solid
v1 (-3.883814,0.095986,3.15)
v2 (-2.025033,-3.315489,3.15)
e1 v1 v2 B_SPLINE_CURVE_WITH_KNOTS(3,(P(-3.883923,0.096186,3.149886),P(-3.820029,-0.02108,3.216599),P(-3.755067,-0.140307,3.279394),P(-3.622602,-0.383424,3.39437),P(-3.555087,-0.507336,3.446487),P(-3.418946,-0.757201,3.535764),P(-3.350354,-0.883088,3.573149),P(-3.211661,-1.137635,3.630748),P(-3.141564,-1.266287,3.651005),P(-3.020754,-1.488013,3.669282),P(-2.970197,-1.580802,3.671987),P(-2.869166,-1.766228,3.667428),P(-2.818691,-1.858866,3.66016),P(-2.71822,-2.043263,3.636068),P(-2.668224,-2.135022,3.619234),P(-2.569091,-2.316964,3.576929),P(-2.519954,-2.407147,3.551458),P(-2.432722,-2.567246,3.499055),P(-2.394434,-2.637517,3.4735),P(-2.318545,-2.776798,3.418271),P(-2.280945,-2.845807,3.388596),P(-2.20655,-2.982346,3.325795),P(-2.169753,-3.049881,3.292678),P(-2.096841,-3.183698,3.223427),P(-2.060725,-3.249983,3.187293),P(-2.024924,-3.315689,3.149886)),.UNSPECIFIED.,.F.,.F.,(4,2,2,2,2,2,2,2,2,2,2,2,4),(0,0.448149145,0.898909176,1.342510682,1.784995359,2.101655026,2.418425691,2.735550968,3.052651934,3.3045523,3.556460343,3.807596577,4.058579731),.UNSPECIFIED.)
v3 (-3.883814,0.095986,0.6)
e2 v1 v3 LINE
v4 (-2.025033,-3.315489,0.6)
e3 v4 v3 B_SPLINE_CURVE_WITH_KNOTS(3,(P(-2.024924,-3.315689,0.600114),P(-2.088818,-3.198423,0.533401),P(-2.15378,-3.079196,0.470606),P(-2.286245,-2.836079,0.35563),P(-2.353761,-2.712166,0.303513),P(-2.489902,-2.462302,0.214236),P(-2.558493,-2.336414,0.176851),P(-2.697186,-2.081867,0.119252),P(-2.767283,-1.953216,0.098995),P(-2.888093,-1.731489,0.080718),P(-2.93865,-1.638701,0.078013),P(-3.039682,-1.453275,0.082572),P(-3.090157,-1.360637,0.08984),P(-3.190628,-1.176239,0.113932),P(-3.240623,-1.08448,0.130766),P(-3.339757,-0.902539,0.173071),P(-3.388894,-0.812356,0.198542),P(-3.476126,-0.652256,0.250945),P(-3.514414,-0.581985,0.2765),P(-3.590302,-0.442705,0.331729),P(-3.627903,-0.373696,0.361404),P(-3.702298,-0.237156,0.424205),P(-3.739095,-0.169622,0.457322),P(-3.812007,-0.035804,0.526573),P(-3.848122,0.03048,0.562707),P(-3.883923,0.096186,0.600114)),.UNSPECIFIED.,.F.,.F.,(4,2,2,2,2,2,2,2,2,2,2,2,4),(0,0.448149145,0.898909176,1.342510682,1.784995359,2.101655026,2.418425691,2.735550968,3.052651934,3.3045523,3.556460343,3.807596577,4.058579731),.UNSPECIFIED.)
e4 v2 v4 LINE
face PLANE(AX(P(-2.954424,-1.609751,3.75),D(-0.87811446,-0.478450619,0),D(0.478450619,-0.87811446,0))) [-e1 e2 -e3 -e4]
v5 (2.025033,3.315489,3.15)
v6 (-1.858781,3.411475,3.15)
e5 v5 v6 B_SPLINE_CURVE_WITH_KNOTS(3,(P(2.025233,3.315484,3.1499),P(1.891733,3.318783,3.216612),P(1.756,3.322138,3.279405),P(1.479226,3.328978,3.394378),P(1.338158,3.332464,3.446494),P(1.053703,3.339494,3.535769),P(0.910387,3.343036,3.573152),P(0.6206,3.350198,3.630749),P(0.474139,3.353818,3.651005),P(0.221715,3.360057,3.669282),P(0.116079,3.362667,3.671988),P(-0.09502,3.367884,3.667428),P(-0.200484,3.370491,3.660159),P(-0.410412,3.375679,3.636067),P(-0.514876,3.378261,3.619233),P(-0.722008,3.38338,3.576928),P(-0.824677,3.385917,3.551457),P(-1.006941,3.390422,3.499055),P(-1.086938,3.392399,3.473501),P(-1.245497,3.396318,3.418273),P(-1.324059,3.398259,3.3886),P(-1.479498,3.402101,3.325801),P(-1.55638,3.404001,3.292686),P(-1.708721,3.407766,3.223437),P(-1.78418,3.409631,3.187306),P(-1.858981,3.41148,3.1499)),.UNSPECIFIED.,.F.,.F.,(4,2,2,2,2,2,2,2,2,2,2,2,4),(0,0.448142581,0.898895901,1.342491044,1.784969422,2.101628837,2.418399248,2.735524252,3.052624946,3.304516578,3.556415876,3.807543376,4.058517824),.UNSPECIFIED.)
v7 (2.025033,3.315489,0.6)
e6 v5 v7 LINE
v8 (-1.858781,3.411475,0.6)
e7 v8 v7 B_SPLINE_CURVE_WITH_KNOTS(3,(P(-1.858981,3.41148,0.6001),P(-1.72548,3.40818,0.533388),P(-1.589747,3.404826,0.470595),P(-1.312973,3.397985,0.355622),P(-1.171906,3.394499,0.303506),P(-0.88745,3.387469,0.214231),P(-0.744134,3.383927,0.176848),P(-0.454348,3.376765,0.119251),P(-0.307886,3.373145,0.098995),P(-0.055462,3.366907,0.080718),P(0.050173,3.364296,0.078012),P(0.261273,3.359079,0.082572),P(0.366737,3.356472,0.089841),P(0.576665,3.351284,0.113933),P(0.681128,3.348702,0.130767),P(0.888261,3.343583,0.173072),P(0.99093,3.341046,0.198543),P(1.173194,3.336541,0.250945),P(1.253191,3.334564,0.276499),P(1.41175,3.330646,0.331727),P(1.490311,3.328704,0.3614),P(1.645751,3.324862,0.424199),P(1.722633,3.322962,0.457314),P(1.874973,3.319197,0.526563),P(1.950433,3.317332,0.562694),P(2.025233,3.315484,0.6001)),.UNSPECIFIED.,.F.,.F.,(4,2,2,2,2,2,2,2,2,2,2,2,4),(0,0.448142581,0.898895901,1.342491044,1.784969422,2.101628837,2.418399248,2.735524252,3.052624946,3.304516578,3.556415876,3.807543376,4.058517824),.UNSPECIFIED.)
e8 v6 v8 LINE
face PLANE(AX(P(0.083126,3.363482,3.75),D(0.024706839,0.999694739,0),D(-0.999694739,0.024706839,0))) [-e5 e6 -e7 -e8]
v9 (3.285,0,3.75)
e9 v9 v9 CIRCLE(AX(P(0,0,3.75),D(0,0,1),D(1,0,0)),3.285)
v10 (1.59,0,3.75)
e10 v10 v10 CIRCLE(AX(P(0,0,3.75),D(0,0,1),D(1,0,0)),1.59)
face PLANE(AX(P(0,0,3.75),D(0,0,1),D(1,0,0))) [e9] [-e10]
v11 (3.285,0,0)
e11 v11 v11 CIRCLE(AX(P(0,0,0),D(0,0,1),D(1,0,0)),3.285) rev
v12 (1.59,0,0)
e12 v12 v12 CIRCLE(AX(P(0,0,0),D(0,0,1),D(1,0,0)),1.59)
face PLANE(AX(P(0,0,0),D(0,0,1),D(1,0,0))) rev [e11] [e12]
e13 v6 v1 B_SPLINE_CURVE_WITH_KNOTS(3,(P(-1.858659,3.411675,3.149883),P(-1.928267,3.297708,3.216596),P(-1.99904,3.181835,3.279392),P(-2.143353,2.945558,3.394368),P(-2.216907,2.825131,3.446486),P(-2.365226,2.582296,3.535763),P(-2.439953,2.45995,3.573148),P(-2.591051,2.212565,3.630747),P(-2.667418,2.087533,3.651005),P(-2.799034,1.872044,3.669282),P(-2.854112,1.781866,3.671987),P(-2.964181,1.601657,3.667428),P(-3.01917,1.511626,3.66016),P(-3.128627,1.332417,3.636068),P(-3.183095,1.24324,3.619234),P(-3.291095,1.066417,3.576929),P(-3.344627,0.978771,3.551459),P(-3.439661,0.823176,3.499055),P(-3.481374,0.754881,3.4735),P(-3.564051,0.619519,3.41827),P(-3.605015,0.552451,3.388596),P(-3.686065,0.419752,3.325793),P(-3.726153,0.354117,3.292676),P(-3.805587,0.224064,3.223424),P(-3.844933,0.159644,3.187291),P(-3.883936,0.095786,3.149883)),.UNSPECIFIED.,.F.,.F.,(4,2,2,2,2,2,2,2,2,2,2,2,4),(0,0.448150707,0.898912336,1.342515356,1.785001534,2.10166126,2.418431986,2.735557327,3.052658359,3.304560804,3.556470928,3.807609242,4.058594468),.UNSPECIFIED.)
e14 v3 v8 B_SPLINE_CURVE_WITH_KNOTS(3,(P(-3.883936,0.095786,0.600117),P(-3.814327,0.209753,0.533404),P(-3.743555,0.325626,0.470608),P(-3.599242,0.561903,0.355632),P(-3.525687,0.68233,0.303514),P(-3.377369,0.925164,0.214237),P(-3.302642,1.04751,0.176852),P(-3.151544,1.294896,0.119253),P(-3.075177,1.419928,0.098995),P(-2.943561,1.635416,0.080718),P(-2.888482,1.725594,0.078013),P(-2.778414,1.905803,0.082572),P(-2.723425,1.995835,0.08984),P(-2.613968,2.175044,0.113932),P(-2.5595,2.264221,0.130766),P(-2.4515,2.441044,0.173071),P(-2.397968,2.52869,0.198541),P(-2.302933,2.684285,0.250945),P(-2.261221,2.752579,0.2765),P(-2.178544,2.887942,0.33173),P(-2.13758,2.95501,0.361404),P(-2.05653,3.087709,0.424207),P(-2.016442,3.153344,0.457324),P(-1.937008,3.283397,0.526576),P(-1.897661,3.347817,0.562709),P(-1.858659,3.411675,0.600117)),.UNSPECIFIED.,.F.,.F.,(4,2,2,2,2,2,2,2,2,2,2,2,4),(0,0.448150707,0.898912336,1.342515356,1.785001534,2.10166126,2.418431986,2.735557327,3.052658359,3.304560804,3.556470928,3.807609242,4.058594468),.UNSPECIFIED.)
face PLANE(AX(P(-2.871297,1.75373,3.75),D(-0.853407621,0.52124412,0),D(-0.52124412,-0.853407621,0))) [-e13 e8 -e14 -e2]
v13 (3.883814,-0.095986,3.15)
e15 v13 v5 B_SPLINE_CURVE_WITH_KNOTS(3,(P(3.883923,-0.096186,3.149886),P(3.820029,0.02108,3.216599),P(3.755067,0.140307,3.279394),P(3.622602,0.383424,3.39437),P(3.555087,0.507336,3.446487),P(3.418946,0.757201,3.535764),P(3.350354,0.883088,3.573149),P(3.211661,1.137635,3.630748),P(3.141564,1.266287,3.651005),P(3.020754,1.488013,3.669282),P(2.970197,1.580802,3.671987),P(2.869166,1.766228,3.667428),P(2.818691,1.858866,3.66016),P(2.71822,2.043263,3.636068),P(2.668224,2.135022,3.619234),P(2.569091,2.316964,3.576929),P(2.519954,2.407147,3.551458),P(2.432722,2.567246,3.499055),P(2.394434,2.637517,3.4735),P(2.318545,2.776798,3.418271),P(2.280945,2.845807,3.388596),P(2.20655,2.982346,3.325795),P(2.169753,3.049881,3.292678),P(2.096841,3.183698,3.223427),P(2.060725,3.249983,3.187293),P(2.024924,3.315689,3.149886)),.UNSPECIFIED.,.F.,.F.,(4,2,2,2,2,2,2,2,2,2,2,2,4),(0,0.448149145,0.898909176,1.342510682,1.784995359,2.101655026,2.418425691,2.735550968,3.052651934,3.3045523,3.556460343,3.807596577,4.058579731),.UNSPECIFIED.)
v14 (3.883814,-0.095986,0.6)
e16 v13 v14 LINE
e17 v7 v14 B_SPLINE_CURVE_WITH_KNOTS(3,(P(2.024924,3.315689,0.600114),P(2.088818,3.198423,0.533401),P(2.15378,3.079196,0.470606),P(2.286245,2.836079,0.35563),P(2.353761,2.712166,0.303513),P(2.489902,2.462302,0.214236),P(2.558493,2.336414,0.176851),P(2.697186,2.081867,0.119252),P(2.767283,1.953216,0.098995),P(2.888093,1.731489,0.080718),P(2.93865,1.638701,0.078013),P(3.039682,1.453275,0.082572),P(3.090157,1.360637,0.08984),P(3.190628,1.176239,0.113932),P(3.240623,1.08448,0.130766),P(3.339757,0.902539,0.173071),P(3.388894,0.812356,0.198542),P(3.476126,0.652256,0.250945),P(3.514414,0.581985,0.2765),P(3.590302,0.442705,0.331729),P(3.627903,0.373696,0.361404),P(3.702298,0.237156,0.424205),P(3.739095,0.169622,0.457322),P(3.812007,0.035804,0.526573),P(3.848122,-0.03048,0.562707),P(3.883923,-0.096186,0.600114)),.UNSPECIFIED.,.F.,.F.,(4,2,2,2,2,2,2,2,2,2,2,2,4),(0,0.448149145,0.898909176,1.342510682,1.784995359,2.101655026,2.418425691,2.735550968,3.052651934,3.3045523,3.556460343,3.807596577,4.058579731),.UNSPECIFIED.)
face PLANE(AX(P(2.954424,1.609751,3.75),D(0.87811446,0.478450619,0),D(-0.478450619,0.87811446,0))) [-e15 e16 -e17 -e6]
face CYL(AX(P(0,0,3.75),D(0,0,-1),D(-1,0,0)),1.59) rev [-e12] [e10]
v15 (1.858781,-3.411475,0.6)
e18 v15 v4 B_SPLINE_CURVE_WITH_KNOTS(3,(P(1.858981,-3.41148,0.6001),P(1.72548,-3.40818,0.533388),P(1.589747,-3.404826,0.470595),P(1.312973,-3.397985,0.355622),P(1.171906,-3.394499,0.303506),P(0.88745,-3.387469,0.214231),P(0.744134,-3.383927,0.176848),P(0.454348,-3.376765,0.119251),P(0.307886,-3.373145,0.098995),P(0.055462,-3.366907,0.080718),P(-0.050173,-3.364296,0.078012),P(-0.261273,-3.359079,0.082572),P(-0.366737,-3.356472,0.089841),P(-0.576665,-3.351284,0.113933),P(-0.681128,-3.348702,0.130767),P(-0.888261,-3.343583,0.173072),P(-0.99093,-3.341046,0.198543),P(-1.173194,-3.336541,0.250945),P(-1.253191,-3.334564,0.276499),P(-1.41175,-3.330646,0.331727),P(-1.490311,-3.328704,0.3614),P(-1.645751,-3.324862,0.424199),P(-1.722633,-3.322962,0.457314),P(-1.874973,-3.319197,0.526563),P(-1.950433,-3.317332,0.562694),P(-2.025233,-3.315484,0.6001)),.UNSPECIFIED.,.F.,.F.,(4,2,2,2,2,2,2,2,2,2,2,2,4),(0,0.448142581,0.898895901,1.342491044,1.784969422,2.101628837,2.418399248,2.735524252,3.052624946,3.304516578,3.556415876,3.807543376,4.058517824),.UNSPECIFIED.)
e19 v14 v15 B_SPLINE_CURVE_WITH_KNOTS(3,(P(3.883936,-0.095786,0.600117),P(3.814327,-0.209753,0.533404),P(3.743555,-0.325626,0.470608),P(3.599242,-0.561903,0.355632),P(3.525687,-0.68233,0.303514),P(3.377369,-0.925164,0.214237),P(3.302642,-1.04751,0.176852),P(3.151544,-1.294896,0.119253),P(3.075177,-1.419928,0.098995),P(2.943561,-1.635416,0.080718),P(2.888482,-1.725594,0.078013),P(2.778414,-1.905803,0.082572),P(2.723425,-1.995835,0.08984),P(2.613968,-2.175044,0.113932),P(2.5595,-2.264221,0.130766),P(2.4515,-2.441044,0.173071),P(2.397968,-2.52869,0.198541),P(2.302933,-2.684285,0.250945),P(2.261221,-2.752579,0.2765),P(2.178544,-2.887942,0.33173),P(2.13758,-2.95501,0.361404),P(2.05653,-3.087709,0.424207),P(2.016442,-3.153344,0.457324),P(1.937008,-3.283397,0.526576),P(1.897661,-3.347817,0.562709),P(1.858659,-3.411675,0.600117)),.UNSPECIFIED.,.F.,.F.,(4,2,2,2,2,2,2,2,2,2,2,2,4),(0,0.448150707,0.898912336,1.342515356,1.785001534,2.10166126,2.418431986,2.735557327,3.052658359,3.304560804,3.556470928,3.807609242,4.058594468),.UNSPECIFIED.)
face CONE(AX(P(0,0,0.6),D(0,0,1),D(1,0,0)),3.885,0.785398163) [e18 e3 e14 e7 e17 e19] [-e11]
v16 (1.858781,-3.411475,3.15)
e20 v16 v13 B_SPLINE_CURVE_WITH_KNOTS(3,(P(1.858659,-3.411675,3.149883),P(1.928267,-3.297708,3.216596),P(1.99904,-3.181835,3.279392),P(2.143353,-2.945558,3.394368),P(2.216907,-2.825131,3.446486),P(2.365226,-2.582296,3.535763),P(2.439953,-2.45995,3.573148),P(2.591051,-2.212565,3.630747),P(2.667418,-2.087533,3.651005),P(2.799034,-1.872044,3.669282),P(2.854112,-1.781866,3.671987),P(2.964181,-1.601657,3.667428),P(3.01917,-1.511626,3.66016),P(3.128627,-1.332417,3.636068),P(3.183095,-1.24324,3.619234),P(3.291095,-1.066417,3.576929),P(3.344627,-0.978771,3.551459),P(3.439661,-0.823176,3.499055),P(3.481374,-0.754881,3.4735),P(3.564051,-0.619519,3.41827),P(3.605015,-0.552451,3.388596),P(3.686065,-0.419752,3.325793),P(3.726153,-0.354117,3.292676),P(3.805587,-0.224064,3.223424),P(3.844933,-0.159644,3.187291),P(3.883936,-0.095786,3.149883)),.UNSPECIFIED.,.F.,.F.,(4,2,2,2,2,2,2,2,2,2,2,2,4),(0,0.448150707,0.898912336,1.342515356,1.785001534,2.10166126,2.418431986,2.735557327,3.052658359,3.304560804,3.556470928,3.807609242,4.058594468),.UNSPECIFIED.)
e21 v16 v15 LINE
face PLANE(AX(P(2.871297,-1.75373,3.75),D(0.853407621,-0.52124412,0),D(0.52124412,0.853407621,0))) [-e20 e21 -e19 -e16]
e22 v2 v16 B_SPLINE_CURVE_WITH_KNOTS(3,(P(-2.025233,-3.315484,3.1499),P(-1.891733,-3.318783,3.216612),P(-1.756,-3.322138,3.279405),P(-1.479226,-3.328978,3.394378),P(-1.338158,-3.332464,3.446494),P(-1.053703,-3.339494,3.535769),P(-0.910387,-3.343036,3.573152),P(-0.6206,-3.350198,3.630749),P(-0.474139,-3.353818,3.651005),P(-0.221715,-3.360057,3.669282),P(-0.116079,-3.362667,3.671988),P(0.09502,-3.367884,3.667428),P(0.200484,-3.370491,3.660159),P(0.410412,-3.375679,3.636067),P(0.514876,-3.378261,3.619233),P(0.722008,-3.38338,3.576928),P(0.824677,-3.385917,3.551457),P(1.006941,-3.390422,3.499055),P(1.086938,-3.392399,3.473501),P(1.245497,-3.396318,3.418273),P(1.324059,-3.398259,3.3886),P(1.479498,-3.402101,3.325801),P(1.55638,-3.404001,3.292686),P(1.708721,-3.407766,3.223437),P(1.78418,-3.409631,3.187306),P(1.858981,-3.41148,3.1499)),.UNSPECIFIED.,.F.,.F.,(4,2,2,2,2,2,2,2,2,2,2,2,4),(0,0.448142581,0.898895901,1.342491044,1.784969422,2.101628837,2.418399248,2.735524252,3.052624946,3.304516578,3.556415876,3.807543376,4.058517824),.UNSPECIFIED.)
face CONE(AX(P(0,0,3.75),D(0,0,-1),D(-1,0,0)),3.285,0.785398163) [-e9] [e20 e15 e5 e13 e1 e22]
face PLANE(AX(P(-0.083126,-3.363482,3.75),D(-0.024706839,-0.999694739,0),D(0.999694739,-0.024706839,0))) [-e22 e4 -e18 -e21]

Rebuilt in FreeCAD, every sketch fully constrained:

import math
import FreeCAD as App
import Part
import Sketcher

V = App.Vector


def edges_at(feature, points):
    """Names of the edges that pass closest to the given points."""
    edges = feature.Shape.Edges
    near = lambda p: min(range(len(edges)), key=lambda i: edges[i].distToShape(Part.Vertex(*p))[0])
    return sorted({f"Edge{near(p) + 1}" for p in points})

doc = App.newDocument("Part")
params = doc.addObject("Spreadsheet::Sheet", "Params")
for row, (alias, value) in enumerate([
    ("sketch1_diameter", "7.77 mm"),
    ("sketch1_diameter2", "3.18 mm"),
    ("pad1_length", "3.75 mm"),
    ("chamfer_size", "0.6 mm"),
    ("pocket1_length", "3.75 mm"),
], start=1):
    params.set(f"A{row}", alias)
    params.set(f"B{row}", "=" + value)
    params.setAlias(f"B{row}", alias)

body = doc.addObject("PartDesign::Body", "Body")

# Sketch on XY plane
sketch1 = doc.addObject("Sketcher::SketchObject", "Sketch")
body.addObject(sketch1)
sketch1.AttachmentSupport = (doc.XY_Plane, [""])
sketch1.MapMode = "FlatFace"
sketch1.addGeometry([
    Part.Circle(V(0, 0, 0), V(0, 0, 1), 3.9),
    Part.Circle(V(0, 0, 0), V(0, 0, 1), 1.6),
], False)
sketch1.addConstraint([
    Sketcher.Constraint("Coincident", 0, 3, -1, 1),
    Sketcher.Constraint("Coincident", 1, 3, -1, 1),
    Sketcher.Constraint("Diameter", 0, 7.77),
    Sketcher.Constraint("Diameter", 1, 3.18),
])
sketch1.setExpression("Constraints[2]", "Params.sketch1_diameter")
sketch1.setExpression("Constraints[3]", "Params.sketch1_diameter2")
pad1 = doc.addObject("PartDesign::Pad", "Pad")
body.addObject(pad1)
pad1.Profile = sketch1
pad1.setExpression("Length", "Params.pad1_length")
doc.recompute()

chamfer = doc.addObject("PartDesign::Chamfer", "Chamfer")
body.addObject(chamfer)
chamfer.Base = (pad1, edges_at(pad1, [(-3.885, 0, 0), (-3.885, 0, 3.75)]))
chamfer.setExpression("Size", "Params.chamfer_size")

# Sketch on XY plane
sketch2 = doc.addObject("Sketcher::SketchObject", "Sketch001")
body.addObject(sketch2)
sketch2.AttachmentSupport = (doc.XY_Plane, [""])
sketch2.MapMode = "FlatFace"
sketch2.addGeometry([
    Part.LineSegment(V(3.88, -0.1, 0), V(2.03, 3.32, 0)),  # 0
    Part.ArcOfCircle(Part.Circle(V(0, 0, 0), V(0, 0, 1), 3.89), math.radians(-1), math.radians(59)),  # 1
    Part.LineSegment(V(1.86, -3.41, 0), V(3.88, -0.1, 0)),  # 2
    Part.ArcOfCircle(Part.Circle(V(0, 0, 0), V(0, 0, 1), 3.88), math.radians(-61), math.radians(-1)),  # 3
    Part.ArcOfCircle(Part.Circle(V(0, 0, 0), V(0, 0, 1), 3.88), math.radians(-121), math.radians(-61)),  # 4
    Part.LineSegment(V(-2.03, -3.32, 0), V(1.86, -3.41, 0)),  # 5
    Part.ArcOfCircle(Part.Circle(V(0, 0, 0), V(0, 0, 1), 3.89), math.radians(178.58), math.radians(180)),  # 6
    Part.LineSegment(V(-3.88, 0.1, 0), V(-2.03, -3.32, 0)),  # 7
    Part.ArcOfCircle(Part.Circle(V(0, 0, 0), V(0, 0, 1), 3.89), math.radians(-180), math.radians(-121)),  # 8
    Part.ArcOfCircle(Part.Circle(V(0, 0, 0), V(0, 0, 1), 3.88), math.radians(119), math.radians(179)),  # 9
    Part.LineSegment(V(-1.86, 3.41, 0), V(-3.88, 0.1, 0)),  # 10
    Part.LineSegment(V(2.03, 3.32, 0), V(-1.86, 3.41, 0)),  # 11
    Part.ArcOfCircle(Part.Circle(V(0, 0, 0), V(0, 0, 1), 3.88), math.radians(59), math.radians(119)),  # 12
], False)
sketch2.addConstraint([
    Sketcher.Constraint("Coincident", 0, 1, 1, 1),
    Sketcher.Constraint("Coincident", 1, 2, 0, 2),
    Sketcher.Constraint("Coincident", 2, 1, 3, 1),
    Sketcher.Constraint("Coincident", 3, 2, 2, 2),
    Sketcher.Constraint("Coincident", 4, 1, 5, 1),
    Sketcher.Constraint("Coincident", 5, 2, 4, 2),
    Sketcher.Constraint("Coincident", 6, 1, 7, 1),
    Sketcher.Constraint("Coincident", 7, 2, 8, 2),
    Sketcher.Constraint("Tangent", 8, 1, 6, 2),
    Sketcher.Constraint("Coincident", 9, 1, 10, 1),
    Sketcher.Constraint("Coincident", 10, 2, 9, 2),
    Sketcher.Constraint("Coincident", 11, 1, 12, 1),
    Sketcher.Constraint("Coincident", 12, 2, 11, 2),
    Sketcher.Constraint("Coincident", 1, 3, -1, 1),
    Sketcher.Constraint("Coincident", 3, 3, -1, 1),
    Sketcher.Constraint("Coincident", 4, 3, -1, 1),
    Sketcher.Constraint("Coincident", 6, 3, -1, 1),
    Sketcher.Constraint("Coincident", 9, 3, -1, 1),
    Sketcher.Constraint("Coincident", 12, 3, -1, 1),
    Sketcher.Constraint("Coincident", 3, 2, 0, 1),
    Sketcher.Constraint("Coincident", 5, 2, 2, 1),
    Sketcher.Constraint("Coincident", 7, 2, 4, 1),
    Sketcher.Constraint("Coincident", 10, 2, 6, 1),
    Sketcher.Constraint("Coincident", 11, 1, 1, 2),
    Sketcher.Constraint("Coincident", 12, 2, 9, 1),
    Sketcher.Constraint("PointOnObject", 8, 1, -1),
    Sketcher.Constraint("Parallel", 0, 7),
    Sketcher.Constraint("Parallel", 2, 10),
    Sketcher.Constraint("Equal", 0, 2),
    Sketcher.Constraint("Equal", 2, 5),
    Sketcher.Constraint("Equal", 5, 7),
    Sketcher.Constraint("Radius", 1, 3.885),
    Sketcher.Constraint("DistanceY", -1, 1, 1, 2, 3.315489),
])
pocket1 = doc.addObject("PartDesign::Pocket", "Pocket")
body.addObject(pocket1)
pocket1.Profile = sketch2
pocket1.setExpression("Length", "Params.pocket1_length")
pocket1.Reversed = True

doc.recompute()
